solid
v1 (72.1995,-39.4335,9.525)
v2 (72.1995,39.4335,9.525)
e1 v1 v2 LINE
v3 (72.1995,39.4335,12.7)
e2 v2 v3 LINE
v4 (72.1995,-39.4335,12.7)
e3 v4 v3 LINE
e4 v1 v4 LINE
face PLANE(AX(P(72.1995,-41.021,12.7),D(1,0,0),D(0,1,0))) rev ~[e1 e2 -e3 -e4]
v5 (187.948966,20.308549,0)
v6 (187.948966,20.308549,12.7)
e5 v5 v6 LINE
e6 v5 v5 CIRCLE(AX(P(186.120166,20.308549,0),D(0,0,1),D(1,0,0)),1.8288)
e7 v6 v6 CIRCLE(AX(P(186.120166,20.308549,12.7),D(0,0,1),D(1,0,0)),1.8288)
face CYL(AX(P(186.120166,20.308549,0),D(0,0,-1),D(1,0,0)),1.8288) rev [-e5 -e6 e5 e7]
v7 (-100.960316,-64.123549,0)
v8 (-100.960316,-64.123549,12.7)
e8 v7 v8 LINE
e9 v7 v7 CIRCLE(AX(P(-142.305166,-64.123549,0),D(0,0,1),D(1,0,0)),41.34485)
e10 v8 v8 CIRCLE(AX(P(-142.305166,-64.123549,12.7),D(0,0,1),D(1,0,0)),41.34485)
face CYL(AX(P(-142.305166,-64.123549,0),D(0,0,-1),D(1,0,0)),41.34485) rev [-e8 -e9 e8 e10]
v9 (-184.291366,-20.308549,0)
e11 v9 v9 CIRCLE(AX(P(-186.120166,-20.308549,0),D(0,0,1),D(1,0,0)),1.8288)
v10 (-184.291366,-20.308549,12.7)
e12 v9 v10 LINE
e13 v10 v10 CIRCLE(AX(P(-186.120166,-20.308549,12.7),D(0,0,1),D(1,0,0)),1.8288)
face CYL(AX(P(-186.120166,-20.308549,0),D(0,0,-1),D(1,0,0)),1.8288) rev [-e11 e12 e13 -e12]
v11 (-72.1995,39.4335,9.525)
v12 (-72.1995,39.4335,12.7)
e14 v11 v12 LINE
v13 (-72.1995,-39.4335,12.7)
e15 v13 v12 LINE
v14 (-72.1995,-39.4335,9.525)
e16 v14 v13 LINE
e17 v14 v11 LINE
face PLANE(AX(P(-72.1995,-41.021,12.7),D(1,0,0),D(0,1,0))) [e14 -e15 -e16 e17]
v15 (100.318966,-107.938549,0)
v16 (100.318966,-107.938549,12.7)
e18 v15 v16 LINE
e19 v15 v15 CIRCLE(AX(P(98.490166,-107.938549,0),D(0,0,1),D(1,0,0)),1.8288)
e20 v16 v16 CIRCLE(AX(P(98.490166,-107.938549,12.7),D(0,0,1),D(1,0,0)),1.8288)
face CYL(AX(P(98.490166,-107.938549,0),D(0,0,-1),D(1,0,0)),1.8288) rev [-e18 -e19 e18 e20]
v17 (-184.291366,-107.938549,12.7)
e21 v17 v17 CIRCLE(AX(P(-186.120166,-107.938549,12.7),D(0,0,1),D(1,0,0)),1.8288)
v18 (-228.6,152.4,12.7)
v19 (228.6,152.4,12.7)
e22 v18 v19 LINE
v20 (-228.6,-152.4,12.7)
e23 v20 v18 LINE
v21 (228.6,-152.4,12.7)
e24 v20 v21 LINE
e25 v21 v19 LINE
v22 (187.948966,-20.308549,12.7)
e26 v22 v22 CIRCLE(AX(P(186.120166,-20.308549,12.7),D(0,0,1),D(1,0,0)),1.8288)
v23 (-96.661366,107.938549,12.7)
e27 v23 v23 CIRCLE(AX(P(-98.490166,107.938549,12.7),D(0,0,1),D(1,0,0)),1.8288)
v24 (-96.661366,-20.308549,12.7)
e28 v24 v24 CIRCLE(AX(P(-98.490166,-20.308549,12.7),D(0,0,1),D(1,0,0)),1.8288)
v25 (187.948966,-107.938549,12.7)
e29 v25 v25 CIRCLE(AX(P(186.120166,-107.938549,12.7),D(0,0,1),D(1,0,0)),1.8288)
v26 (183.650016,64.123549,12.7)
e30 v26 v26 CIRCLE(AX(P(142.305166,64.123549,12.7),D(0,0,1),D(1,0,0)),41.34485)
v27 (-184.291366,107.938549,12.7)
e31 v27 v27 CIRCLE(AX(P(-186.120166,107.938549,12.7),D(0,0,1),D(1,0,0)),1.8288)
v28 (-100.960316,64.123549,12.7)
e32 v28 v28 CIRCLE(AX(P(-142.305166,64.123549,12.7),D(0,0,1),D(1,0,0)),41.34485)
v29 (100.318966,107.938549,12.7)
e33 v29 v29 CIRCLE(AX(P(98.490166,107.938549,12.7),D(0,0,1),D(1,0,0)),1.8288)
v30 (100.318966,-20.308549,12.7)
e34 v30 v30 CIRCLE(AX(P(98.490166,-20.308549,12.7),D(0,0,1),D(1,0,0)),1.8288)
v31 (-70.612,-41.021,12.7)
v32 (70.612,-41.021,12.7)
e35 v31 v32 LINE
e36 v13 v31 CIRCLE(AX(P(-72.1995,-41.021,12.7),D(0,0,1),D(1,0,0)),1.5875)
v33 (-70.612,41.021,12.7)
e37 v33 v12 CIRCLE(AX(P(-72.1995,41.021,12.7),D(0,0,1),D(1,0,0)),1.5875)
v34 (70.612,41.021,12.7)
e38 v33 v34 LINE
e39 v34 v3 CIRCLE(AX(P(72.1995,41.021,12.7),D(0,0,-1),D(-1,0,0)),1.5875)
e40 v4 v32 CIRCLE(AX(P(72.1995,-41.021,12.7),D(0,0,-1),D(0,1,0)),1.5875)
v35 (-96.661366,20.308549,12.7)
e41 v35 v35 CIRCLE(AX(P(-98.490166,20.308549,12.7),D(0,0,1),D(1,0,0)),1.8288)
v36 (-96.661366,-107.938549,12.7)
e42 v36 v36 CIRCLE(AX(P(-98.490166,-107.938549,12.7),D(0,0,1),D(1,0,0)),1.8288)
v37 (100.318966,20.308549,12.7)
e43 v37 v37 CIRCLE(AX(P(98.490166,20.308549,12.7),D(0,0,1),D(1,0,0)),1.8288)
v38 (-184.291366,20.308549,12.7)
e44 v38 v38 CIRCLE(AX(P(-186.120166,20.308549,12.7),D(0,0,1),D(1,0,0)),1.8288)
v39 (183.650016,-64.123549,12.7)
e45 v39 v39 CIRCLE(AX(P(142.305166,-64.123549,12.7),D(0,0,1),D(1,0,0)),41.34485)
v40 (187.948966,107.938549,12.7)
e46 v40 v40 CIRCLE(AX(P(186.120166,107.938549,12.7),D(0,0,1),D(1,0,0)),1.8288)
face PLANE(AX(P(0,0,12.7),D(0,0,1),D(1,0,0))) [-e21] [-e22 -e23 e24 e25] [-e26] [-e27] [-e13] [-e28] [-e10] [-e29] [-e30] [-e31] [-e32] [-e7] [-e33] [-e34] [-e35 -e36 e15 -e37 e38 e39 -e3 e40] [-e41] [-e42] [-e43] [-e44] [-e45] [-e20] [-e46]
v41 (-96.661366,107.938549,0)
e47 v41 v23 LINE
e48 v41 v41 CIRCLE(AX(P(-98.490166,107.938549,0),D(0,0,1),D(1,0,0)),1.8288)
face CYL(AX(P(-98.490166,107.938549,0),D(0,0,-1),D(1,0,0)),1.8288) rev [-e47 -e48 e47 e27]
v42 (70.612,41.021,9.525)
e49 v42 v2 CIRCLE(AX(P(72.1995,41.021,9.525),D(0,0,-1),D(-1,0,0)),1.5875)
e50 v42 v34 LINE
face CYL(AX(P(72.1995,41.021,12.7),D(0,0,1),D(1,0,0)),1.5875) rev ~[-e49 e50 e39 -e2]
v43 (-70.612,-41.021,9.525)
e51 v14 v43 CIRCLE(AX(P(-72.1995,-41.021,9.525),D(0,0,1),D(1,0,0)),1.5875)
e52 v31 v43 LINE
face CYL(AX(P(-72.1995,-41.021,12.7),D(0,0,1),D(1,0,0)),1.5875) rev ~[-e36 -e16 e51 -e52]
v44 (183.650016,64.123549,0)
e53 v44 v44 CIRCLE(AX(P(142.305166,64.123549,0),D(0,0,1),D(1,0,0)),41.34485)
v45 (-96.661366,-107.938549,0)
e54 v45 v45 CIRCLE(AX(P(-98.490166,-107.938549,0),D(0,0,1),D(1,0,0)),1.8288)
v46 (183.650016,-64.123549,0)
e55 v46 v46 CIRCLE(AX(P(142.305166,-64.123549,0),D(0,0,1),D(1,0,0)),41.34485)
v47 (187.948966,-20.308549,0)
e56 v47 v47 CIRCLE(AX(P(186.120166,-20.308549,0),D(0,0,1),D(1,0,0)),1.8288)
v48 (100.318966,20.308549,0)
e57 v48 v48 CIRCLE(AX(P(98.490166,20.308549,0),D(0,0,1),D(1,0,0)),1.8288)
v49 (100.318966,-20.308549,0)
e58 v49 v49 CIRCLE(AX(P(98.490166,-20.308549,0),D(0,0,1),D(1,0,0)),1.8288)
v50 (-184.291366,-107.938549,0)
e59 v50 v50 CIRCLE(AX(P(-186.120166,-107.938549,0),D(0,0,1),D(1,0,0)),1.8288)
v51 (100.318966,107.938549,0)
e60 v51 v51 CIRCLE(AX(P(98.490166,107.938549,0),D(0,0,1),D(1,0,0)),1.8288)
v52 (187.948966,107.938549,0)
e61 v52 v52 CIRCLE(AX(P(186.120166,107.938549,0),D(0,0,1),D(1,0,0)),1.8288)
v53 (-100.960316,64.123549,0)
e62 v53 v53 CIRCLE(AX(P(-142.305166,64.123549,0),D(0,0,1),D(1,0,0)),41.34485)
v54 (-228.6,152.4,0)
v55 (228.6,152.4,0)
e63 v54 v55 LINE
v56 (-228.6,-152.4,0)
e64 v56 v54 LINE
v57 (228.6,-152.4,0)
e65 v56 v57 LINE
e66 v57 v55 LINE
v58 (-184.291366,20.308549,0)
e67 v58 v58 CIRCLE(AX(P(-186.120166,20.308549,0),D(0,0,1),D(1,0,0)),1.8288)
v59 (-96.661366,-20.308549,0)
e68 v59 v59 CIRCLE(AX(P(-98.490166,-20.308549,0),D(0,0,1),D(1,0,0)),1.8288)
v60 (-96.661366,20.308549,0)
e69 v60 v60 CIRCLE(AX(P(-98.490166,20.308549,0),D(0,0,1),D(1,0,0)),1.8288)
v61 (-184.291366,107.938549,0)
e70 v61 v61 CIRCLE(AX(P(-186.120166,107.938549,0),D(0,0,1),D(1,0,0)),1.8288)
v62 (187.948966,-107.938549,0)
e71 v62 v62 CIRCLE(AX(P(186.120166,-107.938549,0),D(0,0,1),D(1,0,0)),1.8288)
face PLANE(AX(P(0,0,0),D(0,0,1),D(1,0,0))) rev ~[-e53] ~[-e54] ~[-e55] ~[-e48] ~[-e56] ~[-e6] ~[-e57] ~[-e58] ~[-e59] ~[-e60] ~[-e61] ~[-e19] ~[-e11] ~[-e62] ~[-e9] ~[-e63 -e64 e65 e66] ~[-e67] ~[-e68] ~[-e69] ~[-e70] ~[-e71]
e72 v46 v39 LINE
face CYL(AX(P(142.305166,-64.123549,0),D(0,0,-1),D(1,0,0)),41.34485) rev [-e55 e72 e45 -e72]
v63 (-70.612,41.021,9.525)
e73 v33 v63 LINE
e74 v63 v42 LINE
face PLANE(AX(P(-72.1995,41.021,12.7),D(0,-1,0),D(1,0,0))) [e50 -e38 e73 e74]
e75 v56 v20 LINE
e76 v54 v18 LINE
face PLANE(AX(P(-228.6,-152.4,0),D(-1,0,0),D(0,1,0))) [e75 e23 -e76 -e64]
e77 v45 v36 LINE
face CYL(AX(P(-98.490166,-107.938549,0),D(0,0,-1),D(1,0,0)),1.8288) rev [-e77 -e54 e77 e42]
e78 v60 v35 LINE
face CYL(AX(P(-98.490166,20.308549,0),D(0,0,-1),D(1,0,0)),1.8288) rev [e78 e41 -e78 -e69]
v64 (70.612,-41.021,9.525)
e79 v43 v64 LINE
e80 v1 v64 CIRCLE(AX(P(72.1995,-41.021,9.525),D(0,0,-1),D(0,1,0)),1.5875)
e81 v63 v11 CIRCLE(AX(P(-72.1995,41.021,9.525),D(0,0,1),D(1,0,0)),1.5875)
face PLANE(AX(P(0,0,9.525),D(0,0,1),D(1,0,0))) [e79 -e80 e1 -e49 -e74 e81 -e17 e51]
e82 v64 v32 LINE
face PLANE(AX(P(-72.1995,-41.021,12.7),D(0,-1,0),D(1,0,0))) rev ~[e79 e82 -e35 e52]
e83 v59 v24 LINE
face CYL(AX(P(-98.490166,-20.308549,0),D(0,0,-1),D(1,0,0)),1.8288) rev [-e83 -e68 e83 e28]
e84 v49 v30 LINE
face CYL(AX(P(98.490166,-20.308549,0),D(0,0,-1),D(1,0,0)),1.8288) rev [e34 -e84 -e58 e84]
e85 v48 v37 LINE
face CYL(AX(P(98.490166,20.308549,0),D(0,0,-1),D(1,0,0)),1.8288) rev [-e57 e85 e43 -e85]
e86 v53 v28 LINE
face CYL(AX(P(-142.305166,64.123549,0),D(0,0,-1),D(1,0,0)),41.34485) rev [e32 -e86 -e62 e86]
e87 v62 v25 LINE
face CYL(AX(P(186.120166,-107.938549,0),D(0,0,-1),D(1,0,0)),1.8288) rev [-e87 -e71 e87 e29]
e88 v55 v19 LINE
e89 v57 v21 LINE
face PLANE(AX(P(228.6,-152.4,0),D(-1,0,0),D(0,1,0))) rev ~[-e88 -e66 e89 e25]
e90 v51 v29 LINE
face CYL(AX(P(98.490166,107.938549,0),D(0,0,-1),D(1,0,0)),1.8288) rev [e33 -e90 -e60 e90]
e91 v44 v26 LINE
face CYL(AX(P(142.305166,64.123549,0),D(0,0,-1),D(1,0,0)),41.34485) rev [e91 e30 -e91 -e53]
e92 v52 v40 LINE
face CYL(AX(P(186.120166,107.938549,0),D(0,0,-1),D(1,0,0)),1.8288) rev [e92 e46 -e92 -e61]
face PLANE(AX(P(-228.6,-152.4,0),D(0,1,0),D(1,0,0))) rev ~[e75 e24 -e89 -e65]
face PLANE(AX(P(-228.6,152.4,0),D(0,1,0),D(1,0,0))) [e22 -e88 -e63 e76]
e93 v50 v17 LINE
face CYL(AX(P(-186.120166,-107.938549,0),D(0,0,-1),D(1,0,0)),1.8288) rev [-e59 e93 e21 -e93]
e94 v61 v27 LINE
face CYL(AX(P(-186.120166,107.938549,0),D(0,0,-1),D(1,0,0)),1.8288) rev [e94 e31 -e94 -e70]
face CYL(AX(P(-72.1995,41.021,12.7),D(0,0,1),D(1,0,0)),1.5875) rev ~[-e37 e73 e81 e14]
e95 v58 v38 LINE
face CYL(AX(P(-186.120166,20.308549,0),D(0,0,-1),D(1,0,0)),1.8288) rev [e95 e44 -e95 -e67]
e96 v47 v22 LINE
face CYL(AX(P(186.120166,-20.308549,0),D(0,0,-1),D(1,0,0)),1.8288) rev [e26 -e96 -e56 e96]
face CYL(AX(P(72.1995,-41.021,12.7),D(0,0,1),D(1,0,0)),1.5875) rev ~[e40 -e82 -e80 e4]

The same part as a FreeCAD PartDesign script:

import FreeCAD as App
import Part
import Sketcher
from FreeCAD import Vector
Q = App.Units.Quantity

doc = App.newDocument("Part")
params = doc.addObject("Spreadsheet::Sheet", "Params")
for row, (alias, value) in enumerate([
    ("sketch1_width", "18 in"),
    ("sketch1_height", "12 in"),
    ("sketch1_diameter", "0.144 in"),
    ("pad1_length", "0.5 in"),
    ("sketch2_height", "3.23 in"),
    ("sketch2_width", "5.685 in"),
    ("pocket1_length", "0.125 in"),
    ("sketch3_diameter", "0.125 in"),
    ("pocket2_length", "0.125 in"),
], start=1):
    params.set(f"A{row}", alias)
    params.set(f"B{row}", "=" + value)
    params.setAlias(f"B{row}", alias)

body = doc.addObject("PartDesign::Body", "Body")

# Sketch on XY plane
sketch1 = body.newObject("Sketcher::SketchObject", "Sketch")
sketch1.AttachmentSupport = (doc.getObject("XY_Plane"), [""])
sketch1.MapMode = "FlatFace"
sketch1.addGeometry([
    Part.LineSegment(Vector(-228.6, 152.4, 0), Vector(-228.6, -152.4, 0)),  # 0
    Part.LineSegment(Vector(-228.6, -152.4, 0), Vector(228.6, -152.4, 0)),  # 1
    Part.LineSegment(Vector(228.6, -152.4, 0), Vector(228.6, 152.4, 0)),  # 2
    Part.LineSegment(Vector(228.6, 152.4, 0), Vector(-228.6, 152.4, 0)),  # 3
    Part.Circle(Vector(-186.1, -107.9, 0), Vector(0, 0, 1), 1.8),  # 4
    Part.Circle(Vector(-98.5, -107.9, 0), Vector(0, 0, 1), 1.8),  # 5
    Part.Circle(Vector(-142.3, -64.1, 0), Vector(0, 0, 1), 41.3),  # 6
    Part.Circle(Vector(-186.1, -20.3, 0), Vector(0, 0, 1), 1.8),  # 7
    Part.Circle(Vector(-98.5, -20.3, 0), Vector(0, 0, 1), 1.8),  # 8
    Part.Circle(Vector(98.5, -107.9, 0), Vector(0, 0, 1), 1.8),  # 9
    Part.Circle(Vector(186.1, -107.9, 0), Vector(0, 0, 1), 1.8),  # 10
    Part.Circle(Vector(142.3, -64.1, 0), Vector(0, 0, 1), 41.3),  # 11
    Part.Circle(Vector(98.5, -20.3, 0), Vector(0, 0, 1), 1.8),  # 12
    Part.Circle(Vector(186.1, -20.3, 0), Vector(0, 0, 1), 1.8),  # 13
    Part.Circle(Vector(-186.1, 20.3, 0), Vector(0, 0, 1), 1.8),  # 14
    Part.Circle(Vector(-98.5, 20.3, 0), Vector(0, 0, 1), 1.8),  # 15
    Part.Circle(Vector(-142.3, 64.1, 0), Vector(0, 0, 1), 41.3),  # 16
    Part.Circle(Vector(-186.1, 107.9, 0), Vector(0, 0, 1), 1.8),  # 17
    Part.Circle(Vector(-98.5, 107.9, 0), Vector(0, 0, 1), 1.8),  # 18
    Part.Circle(Vector(98.5, 20.3, 0), Vector(0, 0, 1), 1.8),  # 19
    Part.Circle(Vector(186.1, 20.3, 0), Vector(0, 0, 1), 1.8),  # 20
    Part.Circle(Vector(142.3, 64.1, 0), Vector(0, 0, 1), 41.3),  # 21
    Part.Circle(Vector(98.5, 107.9, 0), Vector(0, 0, 1), 1.8),  # 22
    Part.Circle(Vector(186.1, 107.9, 0), Vector(0, 0, 1), 1.8),  # 23
], False)
sketch1.addConstraint([
    Sketcher.Constraint("Coincident", 0, 2, 1, 1),
    Sketcher.Constraint("Coincident", 1, 2, 2, 1),
    Sketcher.Constraint("Coincident", 2, 2, 3, 1),
    Sketcher.Constraint("Coincident", 3, 2, 0, 1),
    Sketcher.Constraint("Vertical", 0),
    Sketcher.Constraint("Horizontal", 1),
    Sketcher.Constraint("Vertical", 2),
    Sketcher.Constraint("Horizontal", 3),
    Sketcher.Constraint("Equal", 4, 5),
    Sketcher.Constraint("Equal", 5, 7),
    Sketcher.Constraint("Equal", 7, 8),
    Sketcher.Constraint("Equal", 8, 9),
    Sketcher.Constraint("Equal", 9, 10),
    Sketcher.Constraint("Equal", 6, 11),
    Sketcher.Constraint("Equal", 10, 12),
    Sketcher.Constraint("Equal", 12, 13),
    Sketcher.Constraint("Equal", 13, 14),
    Sketcher.Constraint("Equal", 14, 15),
    Sketcher.Constraint("Equal", 11, 16),
    Sketcher.Constraint("Equal", 15, 17),
    Sketcher.Constraint("Equal", 17, 18),
    Sketcher.Constraint("Equal", 18, 19),
    Sketcher.Constraint("Equal", 19, 20),
    Sketcher.Constraint("Equal", 16, 21),
    Sketcher.Constraint("Equal", 20, 22),
    Sketcher.Constraint("Equal", 22, 23),
    Sketcher.Constraint("Symmetric", 13, 3, 14, 3, -1, 1),
    Sketcher.Constraint("Symmetric", 12, 3, 15, 3, -1, 1),
    Sketcher.Constraint("Symmetric", 11, 3, 16, 3, -1, 1),
    Sketcher.Constraint("Symmetric", 10, 3, 17, 3, -1, 1),
    Sketcher.Constraint("Symmetric", 9, 3, 18, 3, -1, 1),
    Sketcher.Constraint("Symmetric", 8, 3, 19, 3, -1, 1),
    Sketcher.Constraint("Symmetric", 7, 3, 20, 3, -1, 1),
    Sketcher.Constraint("Symmetric", 6, 3, 21, 3, -1, 1),
    Sketcher.Constraint("Symmetric", 5, 3, 22, 3, -1, 1),
    Sketcher.Constraint("Symmetric", 4, 3, 23, 3, -1, 1),
    Sketcher.Constraint("Symmetric", 0, 2, 2, 2, -1, 1),
    Sketcher.Constraint("Symmetric", 5, 3, 9, 3, -2),
    Sketcher.Constraint("Symmetric", 4, 3, 10, 3, -2),
    Sketcher.Constraint("Symmetric", 6, 3, 11, 3, -2),
    Sketcher.Constraint("Symmetric", 8, 3, 12, 3, -2),
    Sketcher.Constraint("Symmetric", 7, 3, 13, 3, -2),
    Sketcher.Constraint("Horizontal", 4, 3, 5, 3),
    Sketcher.Constraint("Horizontal", 7, 3, 8, 3),
    Sketcher.Constraint("Vertical", 4, 3, 7, 3),
    Sketcher.Constraint("Vertical", 5, 3, 8, 3),
    Sketcher.Constraint("DistanceX", 1, 1, 1, 2, Q("18 in")),
    Sketcher.Constraint("DistanceY", 0, 2, 0, 1, Q("12 in")),
    Sketcher.Constraint("Diameter", 4, Q("0.144 in")),
    Sketcher.Constraint("Diameter", 6, Q("3.2555 in")),
    Sketcher.Constraint("DistanceX", 4, 3, 5, 3, Q("3.45 in")),
    Sketcher.Constraint("DistanceY", 4, 3, 7, 3, Q("3.45 in")),
    Sketcher.Constraint("DistanceX", 4, 3, 6, 3, Q("1.725 in")),
    Sketcher.Constraint("DistanceY", 4, 3, 6, 3, Q("1.725 in")),
    Sketcher.Constraint("DistanceY", 4, 3, 14, 3, Q("128.247098 mm")),
    Sketcher.Constraint("DistanceX", 5, 3, 9, 3, Q("196.980332 mm")),
])
sketch1.setExpression("Constraints[46]", "Params.sketch1_width")
sketch1.setExpression("Constraints[47]", "Params.sketch1_height")
sketch1.setExpression("Constraints[48]", "Params.sketch1_diameter")
pad1 = body.newObject("PartDesign::Pad", "Pad")
pad1.Profile = sketch1
pad1.setExpression("Length", "Params.pad1_length")

# Sketch on XY plane
sketch2 = body.newObject("Sketcher::SketchObject", "Sketch001")
sketch2.AttachmentSupport = (doc.getObject("XY_Plane"), [""])
sketch2.MapMode = "FlatFace"
sketch2.AttachmentOffset = App.Placement(Vector(0, 0, 0.5 * 25.4), App.Rotation())
sketch2.addGeometry([
    Part.LineSegment(Vector(-72, 41, 0), Vector(-72, -41, 0)),
    Part.LineSegment(Vector(-72, -41, 0), Vector(72, -41, 0)),
    Part.LineSegment(Vector(72, -41, 0), Vector(72, 41, 0)),
    Part.LineSegment(Vector(72, 41, 0), Vector(-72, 41, 0)),
], False)
sketch2.addConstraint([
    Sketcher.Constraint("Coincident", 0, 2, 1, 1),
    Sketcher.Constraint("Coincident", 1, 2, 2, 1),
    Sketcher.Constraint("Coincident", 2, 2, 3, 1),
    Sketcher.Constraint("Coincident", 3, 2, 0, 1),
    Sketcher.Constraint("Vertical", 0),
    Sketcher.Constraint("Horizontal", 1),
    Sketcher.Constraint("Vertical", 2),
    Sketcher.Constraint("Horizontal", 3),
    Sketcher.Constraint("Symmetric", 0, 2, 2, 2, -1, 1),
    Sketcher.Constraint("DistanceY", 0, 2, 0, 1, Q("3.23 in")),
    Sketcher.Constraint("DistanceX", 1, 1, 1, 2, Q("5.685 in")),
])
sketch2.setExpression("Constraints[9]", "Params.sketch2_height")
sketch2.setExpression("Constraints[10]", "Params.sketch2_width")
pocket1 = body.newObject("PartDesign::Pocket", "Pocket")
pocket1.Profile = sketch2
pocket1.setExpression("Length", "Params.pocket1_length")

# Sketch on XY plane
sketch3 = body.newObject("Sketcher::SketchObject", "Sketch002")
sketch3.AttachmentSupport = (doc.getObject("XY_Plane"), [""])
sketch3.MapMode = "FlatFace"
sketch3.AttachmentOffset = App.Placement(Vector(0, 0, 0.5 * 25.4), App.Rotation())
sketch3.addGeometry([
    Part.Circle(Vector(-72.2, 41, 0), Vector(0, 0, 1), 1.6),
    Part.Circle(Vector(72.2, 41, 0), Vector(0, 0, 1), 1.6),
    Part.Circle(Vector(72.2, -41, 0), Vector(0, 0, 1), 1.6),
    Part.Circle(Vector(-72.2, -41, 0), Vector(0, 0, 1), 1.6),
], False)
sketch3.addConstraint([
    Sketcher.Constraint("Equal", 0, 1),
    Sketcher.Constraint("Equal", 1, 2),
    Sketcher.Constraint("Equal", 2, 3),
    Sketcher.Constraint("Symmetric", 0, 3, 2, 3, -1, 1),
    Sketcher.Constraint("Symmetric", 1, 3, 3, 3, -1, 1),
    Sketcher.Constraint("Symmetric", 0, 3, 1, 3, -2),
    Sketcher.Constraint("Diameter", 0, Q("0.125 in")),
    Sketcher.Constraint("DistanceY", 2, 3, 1, 3, Q("3.23 in")),
    Sketcher.Constraint("DistanceX", 0, 3, 1, 3, Q("5.685 in")),
])
sketch3.setExpression("Constraints[6]", "Params.sketch3_diameter")
pocket2 = body.newObject("PartDesign::Pocket", "Pocket001")
pocket2.Profile = sketch3
pocket2.setExpression("Length", "Params.pocket2_length")

doc.recompute()
